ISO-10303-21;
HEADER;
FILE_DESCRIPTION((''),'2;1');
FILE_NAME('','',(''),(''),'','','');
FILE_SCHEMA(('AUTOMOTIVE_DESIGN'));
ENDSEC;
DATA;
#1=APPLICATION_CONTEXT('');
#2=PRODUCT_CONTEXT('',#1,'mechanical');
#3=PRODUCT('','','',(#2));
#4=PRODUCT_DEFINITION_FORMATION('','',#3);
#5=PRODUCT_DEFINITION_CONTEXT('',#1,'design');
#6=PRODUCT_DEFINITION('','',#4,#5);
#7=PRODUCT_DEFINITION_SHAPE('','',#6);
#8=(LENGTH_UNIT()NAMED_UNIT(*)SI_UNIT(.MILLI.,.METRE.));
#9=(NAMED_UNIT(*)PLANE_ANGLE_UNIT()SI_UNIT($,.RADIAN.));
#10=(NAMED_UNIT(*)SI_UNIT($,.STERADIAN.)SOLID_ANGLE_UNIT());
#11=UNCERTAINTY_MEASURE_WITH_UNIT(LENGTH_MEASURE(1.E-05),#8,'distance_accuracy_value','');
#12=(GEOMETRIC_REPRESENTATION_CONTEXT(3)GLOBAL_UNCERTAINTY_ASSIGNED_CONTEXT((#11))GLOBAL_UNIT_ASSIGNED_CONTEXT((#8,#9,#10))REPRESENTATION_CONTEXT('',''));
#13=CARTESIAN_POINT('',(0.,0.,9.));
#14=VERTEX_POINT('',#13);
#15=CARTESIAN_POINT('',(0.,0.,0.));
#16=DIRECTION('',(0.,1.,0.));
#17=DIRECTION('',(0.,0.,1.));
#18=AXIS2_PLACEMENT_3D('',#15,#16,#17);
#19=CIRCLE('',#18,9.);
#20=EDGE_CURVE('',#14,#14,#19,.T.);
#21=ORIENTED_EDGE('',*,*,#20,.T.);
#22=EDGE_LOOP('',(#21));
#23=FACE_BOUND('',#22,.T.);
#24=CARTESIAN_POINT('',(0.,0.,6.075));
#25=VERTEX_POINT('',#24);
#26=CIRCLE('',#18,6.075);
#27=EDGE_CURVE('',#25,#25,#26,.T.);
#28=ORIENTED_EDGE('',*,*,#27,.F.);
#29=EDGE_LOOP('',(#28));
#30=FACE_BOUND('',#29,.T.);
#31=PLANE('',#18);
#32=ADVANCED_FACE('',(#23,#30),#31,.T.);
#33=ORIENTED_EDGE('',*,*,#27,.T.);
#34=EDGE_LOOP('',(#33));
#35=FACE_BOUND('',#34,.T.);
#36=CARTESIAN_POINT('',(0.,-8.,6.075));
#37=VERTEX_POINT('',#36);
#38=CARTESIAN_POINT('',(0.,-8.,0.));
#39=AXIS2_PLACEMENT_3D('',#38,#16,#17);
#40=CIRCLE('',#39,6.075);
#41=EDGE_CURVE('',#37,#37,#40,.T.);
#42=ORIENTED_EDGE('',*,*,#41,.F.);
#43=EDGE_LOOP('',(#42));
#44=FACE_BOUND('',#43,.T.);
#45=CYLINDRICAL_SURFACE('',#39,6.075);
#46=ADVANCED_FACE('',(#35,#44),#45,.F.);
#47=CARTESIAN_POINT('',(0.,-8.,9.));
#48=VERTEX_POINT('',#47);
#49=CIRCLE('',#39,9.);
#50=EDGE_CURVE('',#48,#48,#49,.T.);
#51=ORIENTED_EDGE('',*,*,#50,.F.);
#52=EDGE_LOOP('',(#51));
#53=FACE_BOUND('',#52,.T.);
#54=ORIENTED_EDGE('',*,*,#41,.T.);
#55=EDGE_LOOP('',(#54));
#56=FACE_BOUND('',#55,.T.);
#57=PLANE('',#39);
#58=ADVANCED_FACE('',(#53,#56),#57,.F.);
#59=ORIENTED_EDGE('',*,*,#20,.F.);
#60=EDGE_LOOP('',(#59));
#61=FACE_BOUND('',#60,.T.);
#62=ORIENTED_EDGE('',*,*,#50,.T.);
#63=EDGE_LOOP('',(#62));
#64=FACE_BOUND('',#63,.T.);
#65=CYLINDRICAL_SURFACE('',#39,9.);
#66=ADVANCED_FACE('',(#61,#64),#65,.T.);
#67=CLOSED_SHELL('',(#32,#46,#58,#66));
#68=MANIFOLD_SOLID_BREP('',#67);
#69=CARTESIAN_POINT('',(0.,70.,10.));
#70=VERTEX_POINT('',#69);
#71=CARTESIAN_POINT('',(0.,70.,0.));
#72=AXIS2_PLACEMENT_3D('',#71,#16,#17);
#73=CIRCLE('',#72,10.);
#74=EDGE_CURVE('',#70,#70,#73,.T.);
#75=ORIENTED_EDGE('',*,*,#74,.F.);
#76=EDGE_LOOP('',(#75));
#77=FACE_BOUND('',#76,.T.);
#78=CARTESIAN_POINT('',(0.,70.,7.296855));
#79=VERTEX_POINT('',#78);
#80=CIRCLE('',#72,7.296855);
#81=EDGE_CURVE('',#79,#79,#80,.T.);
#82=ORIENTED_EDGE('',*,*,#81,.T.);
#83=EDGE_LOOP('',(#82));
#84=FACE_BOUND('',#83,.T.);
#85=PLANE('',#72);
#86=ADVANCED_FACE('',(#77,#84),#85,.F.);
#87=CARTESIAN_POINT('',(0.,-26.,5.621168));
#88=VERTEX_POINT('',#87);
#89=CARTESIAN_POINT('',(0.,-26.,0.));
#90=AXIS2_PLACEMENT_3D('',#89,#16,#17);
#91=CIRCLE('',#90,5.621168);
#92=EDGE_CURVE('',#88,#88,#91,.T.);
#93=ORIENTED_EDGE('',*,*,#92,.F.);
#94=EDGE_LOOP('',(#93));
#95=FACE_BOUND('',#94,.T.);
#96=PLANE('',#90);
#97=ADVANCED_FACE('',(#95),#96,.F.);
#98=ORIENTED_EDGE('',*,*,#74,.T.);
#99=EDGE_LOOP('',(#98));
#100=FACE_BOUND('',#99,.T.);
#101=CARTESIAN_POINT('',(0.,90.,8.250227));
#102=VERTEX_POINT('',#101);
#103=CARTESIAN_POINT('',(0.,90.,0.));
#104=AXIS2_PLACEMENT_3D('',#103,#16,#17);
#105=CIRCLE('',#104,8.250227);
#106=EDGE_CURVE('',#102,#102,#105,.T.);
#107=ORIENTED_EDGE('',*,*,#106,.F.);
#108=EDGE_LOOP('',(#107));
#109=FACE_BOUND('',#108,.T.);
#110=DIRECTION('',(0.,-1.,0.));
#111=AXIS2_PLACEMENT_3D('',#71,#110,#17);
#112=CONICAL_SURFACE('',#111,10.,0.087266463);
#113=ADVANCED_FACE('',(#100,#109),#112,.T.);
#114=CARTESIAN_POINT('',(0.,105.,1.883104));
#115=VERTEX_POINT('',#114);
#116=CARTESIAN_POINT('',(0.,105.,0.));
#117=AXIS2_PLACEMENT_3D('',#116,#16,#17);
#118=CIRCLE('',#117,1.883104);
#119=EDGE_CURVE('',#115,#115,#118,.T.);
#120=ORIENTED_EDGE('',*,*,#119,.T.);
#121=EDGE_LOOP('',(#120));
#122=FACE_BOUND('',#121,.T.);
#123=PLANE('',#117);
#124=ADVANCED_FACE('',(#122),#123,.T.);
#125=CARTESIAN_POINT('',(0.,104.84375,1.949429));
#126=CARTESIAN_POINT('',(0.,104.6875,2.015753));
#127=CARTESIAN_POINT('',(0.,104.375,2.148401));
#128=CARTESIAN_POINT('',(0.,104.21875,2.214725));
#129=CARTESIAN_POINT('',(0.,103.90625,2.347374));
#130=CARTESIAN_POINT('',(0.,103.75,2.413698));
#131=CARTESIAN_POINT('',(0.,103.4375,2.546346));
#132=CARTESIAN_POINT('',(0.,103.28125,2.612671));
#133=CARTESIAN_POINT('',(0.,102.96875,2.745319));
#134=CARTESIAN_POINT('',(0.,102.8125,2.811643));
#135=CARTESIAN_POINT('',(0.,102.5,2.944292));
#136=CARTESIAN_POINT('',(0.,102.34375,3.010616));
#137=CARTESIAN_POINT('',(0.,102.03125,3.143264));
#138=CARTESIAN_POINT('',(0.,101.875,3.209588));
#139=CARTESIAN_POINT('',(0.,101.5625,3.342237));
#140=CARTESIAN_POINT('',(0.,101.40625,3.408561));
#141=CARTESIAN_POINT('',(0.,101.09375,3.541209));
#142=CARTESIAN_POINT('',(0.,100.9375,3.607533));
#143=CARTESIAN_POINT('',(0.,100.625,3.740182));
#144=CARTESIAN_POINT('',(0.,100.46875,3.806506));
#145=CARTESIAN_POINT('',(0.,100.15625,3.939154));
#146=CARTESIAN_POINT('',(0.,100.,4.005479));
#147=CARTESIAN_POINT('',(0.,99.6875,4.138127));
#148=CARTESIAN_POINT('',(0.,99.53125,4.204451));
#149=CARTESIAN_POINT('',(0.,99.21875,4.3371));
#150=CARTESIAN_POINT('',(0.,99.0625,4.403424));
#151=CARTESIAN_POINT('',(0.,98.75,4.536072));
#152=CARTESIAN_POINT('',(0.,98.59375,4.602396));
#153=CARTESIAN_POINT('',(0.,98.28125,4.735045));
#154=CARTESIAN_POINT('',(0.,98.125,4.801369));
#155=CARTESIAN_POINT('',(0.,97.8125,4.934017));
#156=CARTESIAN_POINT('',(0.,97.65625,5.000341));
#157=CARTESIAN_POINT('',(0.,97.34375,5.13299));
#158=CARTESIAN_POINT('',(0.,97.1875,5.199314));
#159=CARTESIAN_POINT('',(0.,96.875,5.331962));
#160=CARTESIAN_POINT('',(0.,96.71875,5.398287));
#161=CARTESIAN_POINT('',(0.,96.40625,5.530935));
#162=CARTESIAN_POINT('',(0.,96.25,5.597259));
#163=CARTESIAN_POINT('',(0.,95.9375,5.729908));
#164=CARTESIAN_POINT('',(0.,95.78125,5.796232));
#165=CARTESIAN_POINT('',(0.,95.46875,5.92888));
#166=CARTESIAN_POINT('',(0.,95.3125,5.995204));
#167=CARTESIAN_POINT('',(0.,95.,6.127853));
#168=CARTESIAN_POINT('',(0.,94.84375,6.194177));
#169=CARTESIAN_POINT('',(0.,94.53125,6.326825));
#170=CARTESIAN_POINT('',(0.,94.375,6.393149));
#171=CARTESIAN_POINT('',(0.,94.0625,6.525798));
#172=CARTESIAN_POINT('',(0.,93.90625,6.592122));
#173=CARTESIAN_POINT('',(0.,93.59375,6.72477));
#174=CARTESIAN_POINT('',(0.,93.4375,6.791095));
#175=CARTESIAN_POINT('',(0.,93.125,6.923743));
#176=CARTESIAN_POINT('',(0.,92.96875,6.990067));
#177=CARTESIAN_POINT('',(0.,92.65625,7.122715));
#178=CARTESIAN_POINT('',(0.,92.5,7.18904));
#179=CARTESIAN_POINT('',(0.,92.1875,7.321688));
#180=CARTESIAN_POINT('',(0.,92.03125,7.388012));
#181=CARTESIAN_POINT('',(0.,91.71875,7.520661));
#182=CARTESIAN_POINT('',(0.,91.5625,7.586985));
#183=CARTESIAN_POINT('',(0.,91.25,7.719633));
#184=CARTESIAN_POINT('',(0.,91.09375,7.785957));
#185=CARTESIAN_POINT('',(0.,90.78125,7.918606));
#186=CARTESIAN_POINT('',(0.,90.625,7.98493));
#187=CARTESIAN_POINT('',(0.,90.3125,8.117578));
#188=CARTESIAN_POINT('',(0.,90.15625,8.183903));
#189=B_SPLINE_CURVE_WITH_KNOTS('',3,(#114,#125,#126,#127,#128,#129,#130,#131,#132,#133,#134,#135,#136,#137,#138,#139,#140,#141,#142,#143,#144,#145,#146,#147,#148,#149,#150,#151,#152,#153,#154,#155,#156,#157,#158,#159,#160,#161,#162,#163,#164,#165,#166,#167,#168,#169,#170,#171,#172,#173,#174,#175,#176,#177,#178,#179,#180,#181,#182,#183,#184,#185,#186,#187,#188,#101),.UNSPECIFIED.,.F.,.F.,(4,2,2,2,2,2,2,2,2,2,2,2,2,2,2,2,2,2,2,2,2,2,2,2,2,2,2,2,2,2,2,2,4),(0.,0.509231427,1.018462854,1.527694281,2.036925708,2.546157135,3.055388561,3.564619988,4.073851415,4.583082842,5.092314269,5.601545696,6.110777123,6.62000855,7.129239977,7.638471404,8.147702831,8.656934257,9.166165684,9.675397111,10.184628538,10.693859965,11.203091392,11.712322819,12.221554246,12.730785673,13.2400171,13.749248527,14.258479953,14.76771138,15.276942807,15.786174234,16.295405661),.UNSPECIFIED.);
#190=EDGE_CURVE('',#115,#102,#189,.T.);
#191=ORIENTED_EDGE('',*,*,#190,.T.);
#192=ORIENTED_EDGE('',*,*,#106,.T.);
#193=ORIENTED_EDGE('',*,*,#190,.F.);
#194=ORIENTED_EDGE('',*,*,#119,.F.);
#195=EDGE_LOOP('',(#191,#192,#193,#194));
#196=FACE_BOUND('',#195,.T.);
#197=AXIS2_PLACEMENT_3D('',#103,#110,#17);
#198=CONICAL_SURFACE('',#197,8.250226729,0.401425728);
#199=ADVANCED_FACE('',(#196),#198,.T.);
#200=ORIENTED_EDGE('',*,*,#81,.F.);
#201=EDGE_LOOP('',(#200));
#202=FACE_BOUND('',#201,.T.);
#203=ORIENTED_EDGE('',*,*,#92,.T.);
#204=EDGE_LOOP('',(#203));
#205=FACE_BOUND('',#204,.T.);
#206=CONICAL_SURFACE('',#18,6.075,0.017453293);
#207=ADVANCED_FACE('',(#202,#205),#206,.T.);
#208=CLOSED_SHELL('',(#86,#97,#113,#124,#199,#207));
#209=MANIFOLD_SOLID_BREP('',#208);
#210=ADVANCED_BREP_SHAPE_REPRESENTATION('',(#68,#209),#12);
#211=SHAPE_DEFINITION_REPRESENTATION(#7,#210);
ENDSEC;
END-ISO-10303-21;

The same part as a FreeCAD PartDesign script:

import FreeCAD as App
import Part
import Sketcher
Q = App.Units.Quantity

doc = App.newDocument("Part")
body = doc.addObject("PartDesign::Body", "Body")

# Sketch on XZ plane
sketch1 = body.newObject("Sketcher::SketchObject", "Sketch")
sketch1.AttachmentSupport = (doc.getObject("XZ_Plane"), [""])
sketch1.MapMode = "FlatFace"
sketch1.addGeometry(Part.Circle(App.Vector(0, 0, 0), App.Vector(0, 0, 1), 9), False)
sketch1.addGeometry(Part.Circle(App.Vector(0, 0, 0), App.Vector(0, 0, 1), 6.075), False)
sketch1.addConstraint(Sketcher.Constraint("Coincident", 0, 3, -1, 1))
sketch1.addConstraint(Sketcher.Constraint("Coincident", 1, 3, -1, 1))
sketch1.addConstraint(Sketcher.Constraint("Diameter", 0, Q("18 mm")))
sketch1.addConstraint(Sketcher.Constraint("Diameter", 1, Q("12.15 mm")))
pad1 = body.newObject("PartDesign::Pad", "Pad")
pad1.Profile = sketch1
pad1.Length = 8
body2 = doc.addObject("PartDesign::Body", "Body001")

# Sketch on XZ plane
sketch2 = body2.newObject("Sketcher::SketchObject", "Sketch001")
sketch2.AttachmentSupport = (doc.getObject("XZ_Plane001"), [""])
sketch2.MapMode = "FlatFace"
sketch2.addGeometry(Part.Circle(App.Vector(0, 0, 0), App.Vector(0, 0, 1), 6.075), False)
sketch2.addConstraint(Sketcher.Constraint("Coincident", 0, 3, -1, 1))
sketch2.addConstraint(Sketcher.Constraint("Diameter", 0, Q("12.15 mm")))
pad2 = body2.newObject("PartDesign::Pad", "Pad001")
pad2.Profile = sketch2
pad2.Length = 70
pad2.Reversed = True
pad2.TaperAngle = 1
body.AllowCompound = True
doc.recompute()

boolean = body.newObject("PartDesign::Boolean", "Boolean")
boolean.Type = "Fuse"
boolean.addObjects([body2])

# Sketch on XZ plane
sketch3 = body.newObject("Sketcher::SketchObject", "Sketch002")
sketch3.AttachmentSupport = (doc.getObject("XZ_Plane"), [""])
sketch3.MapMode = "FlatFace"
sketch3.addGeometry(Part.Circle(App.Vector(0, 0, 0), App.Vector(0, 0, 1), 6.075), False)
sketch3.addConstraint(Sketcher.Constraint("Coincident", 0, 3, -1, 1))
sketch3.addConstraint(Sketcher.Constraint("Diameter", 0, Q("12.15 mm")))
pad3 = body.newObject("PartDesign::Pad", "Pad002")
pad3.Profile = sketch3
pad3.Length = 26
pad3.TaperAngle = -1

# Sketch on XZ plane
sketch4 = body.newObject("Sketcher::SketchObject", "Sketch003")
sketch4.AttachmentSupport = (doc.getObject("XZ_Plane"), [""])
sketch4.MapMode = "FlatFace"
sketch4.AttachmentOffset = App.Placement(App.Vector(0, 0, -70), App.Rotation())
sketch4.addGeometry(Part.Circle(App.Vector(0, 0, 0), App.Vector(0, 0, 1), 10), False)
sketch4.addConstraint(Sketcher.Constraint("Coincident", 0, 3, -1, 1))
sketch4.addConstraint(Sketcher.Constraint("Diameter", 0, Q("20 mm")))
pad4 = body.newObject("PartDesign::Pad", "Pad003")
pad4.Profile = sketch4
pad4.Length = 20
pad4.Reversed = True
pad4.TaperAngle = -5

# Sketch on XZ plane
sketch5 = body.newObject("Sketcher::SketchObject", "Sketch004")
sketch5.AttachmentSupport = (doc.getObject("XZ_Plane"), [""])
sketch5.MapMode = "FlatFace"
sketch5.AttachmentOffset = App.Placement(App.Vector(0, 0, -90), App.Rotation())
sketch5.addGeometry(Part.Circle(App.Vector(0, 0, 0), App.Vector(0, 0, 1), 8.250227), False)
sketch5.addConstraint(Sketcher.Constraint("Coincident", 0, 3, -1, 1))
sketch5.addConstraint(Sketcher.Constraint("Diameter", 0, Q("16.500453 mm")))
pad5 = body.newObject("PartDesign::Pad", "Pad004")
pad5.Profile = sketch5
pad5.Length = 15
pad5.Reversed = True
pad5.TaperAngle = -23

doc.recompute()
